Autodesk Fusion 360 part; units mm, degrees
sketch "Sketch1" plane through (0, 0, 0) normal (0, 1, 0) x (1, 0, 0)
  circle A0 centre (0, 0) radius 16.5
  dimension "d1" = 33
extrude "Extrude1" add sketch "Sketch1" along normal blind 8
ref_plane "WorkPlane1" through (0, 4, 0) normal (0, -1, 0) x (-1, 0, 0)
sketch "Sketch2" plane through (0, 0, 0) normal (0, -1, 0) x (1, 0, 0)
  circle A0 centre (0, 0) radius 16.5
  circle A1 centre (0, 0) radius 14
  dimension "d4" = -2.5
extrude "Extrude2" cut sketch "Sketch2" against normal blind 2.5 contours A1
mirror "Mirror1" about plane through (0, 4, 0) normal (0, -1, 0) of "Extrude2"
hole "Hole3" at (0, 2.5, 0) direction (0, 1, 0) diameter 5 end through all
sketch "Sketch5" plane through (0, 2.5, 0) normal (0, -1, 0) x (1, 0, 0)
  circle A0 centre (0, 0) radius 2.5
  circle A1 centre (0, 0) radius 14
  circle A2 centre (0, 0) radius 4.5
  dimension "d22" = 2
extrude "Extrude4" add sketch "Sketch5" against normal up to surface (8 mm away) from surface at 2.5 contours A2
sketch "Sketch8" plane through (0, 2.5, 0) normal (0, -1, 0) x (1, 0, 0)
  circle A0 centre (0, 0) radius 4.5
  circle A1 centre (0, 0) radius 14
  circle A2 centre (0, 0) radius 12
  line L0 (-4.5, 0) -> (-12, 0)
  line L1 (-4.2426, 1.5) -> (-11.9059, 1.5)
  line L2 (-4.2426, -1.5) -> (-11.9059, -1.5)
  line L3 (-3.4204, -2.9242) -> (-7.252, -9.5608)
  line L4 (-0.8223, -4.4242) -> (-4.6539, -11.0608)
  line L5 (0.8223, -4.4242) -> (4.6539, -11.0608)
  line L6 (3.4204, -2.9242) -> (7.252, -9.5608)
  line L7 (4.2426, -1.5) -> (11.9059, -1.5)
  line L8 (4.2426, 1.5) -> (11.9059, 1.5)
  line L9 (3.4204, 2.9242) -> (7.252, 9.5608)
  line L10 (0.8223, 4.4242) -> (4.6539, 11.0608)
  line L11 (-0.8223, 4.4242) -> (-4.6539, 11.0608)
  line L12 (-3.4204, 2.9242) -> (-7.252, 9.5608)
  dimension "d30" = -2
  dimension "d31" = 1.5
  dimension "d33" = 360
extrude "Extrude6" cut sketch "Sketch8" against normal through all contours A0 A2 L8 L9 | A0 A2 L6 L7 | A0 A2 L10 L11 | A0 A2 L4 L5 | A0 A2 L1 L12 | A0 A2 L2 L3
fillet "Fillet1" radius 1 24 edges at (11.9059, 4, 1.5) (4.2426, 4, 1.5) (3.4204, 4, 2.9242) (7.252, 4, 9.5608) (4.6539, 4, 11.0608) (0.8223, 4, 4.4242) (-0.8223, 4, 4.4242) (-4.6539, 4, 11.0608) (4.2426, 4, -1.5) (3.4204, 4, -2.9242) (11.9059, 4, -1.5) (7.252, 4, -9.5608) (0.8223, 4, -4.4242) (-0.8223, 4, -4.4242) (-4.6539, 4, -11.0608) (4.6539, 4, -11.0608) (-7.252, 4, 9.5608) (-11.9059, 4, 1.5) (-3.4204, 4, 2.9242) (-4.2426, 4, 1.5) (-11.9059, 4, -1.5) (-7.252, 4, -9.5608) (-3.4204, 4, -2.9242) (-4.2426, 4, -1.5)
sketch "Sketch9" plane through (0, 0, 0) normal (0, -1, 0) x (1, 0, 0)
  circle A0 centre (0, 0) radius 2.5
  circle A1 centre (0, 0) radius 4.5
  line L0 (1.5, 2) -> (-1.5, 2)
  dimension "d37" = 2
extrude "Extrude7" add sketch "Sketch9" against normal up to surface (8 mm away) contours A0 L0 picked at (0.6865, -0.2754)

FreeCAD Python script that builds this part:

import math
import FreeCAD as App
import Part
import Sketcher

V = App.Vector
Q = App.Units.Quantity


def edges_at(feature, points):
    """Names of the edges that pass closest to the given points."""
    edges = feature.Shape.Edges
    near = lambda p: min(range(len(edges)), key=lambda i: edges[i].distToShape(Part.Vertex(*p))[0])
    return sorted({f"Edge{near(p) + 1}" for p in points})

doc = App.newDocument("Part")
body = doc.addObject("PartDesign::Body", "Body")

# Sketch on XZ plane
sketch1 = doc.addObject("Sketcher::SketchObject", "Sketch")
body.addObject(sketch1)
sketch1.AttachmentSupport = (doc.XZ_Plane, [""])
sketch1.MapMode = "FlatFace"
sketch1.addGeometry(Part.Circle(V(0, 0, 0), V(0, 0, 1), 16.5), False)
sketch1.addConstraint([
    Sketcher.Constraint("Coincident", 0, 3, -1, 1),
    Sketcher.Constraint("Diameter", 0, Q("33 mm")),
])
pad1 = doc.addObject("PartDesign::Pad", "Pad")
body.addObject(pad1)
pad1.Profile = sketch1
pad1.Length = 8
pad1.Reversed = True

# Sketch on XZ plane
sketch2 = doc.addObject("Sketcher::SketchObject", "Sketch001")
body.addObject(sketch2)
sketch2.AttachmentSupport = (doc.XZ_Plane, [""])
sketch2.MapMode = "FlatFace"
sketch2.addGeometry(Part.Circle(V(0, 0, 0), V(0, 0, 1), 14), False)
sketch2.addConstraint([
    Sketcher.Constraint("Coincident", 0, 3, -1, 1),
    Sketcher.Constraint("Diameter", 0, Q("28 mm")),
])
pocket1 = doc.addObject("PartDesign::Pocket", "Pocket")
body.addObject(pocket1)
pocket1.Profile = sketch2
pocket1.Length = 2.5
doc.recompute()

datumplane = doc.addObject("PartDesign::Plane", "DatumPlane")
body.addObject(datumplane)
datumplane.AttachmentSupport = (doc.XZ_Plane, [""])
datumplane.MapMode = "FlatFace"
datumplane.AttachmentOffset = App.Placement(V(0, 0, -4), App.Rotation())
mirrored = doc.addObject("PartDesign::Mirrored", "Mirrored")
body.addObject(mirrored)
mirrored.Originals = [pocket1]
mirrored.MirrorPlane = (datumplane, [""])
body.Tip = mirrored

# Sketch on XZ plane
sketch3 = doc.addObject("Sketcher::SketchObject", "Sketch002")
body.addObject(sketch3)
sketch3.AttachmentSupport = (doc.XZ_Plane, [""])
sketch3.MapMode = "FlatFace"
sketch3.AttachmentOffset = App.Placement(V(0, 0, -2.5), App.Rotation())
sketch3.addGeometry(Part.Circle(V(0, 0, 0), V(0, 0, 1), 2.5), False)
sketch3.addConstraint([
    Sketcher.Constraint("Coincident", 0, 3, -1, 1),
    Sketcher.Constraint("Diameter", 0, Q("5 mm")),
])
doc.recompute()
hole = doc.addObject("PartDesign::Hole", "Hole")
body.addObject(hole)
hole.Profile = sketch3
hole.ThreadType = "None"
hole.Diameter = 5
hole.DepthType = "ThroughAll"

# Sketch on XZ plane
sketch4 = doc.addObject("Sketcher::SketchObject", "Sketch003")
body.addObject(sketch4)
sketch4.AttachmentSupport = (doc.XZ_Plane, [""])
sketch4.MapMode = "FlatFace"
sketch4.addGeometry([
    Part.Circle(V(0, 0, 0), V(0, 0, 1), 4.5),
    Part.Circle(V(0, 0, 0), V(0, 0, 1), 2.5),
], False)
sketch4.addConstraint([
    Sketcher.Constraint("Coincident", 0, 3, -1, 1),
    Sketcher.Constraint("Coincident", 1, 3, -1, 1),
    Sketcher.Constraint("Diameter", 0, Q("9 mm")),
    Sketcher.Constraint("Diameter", 1, Q("5 mm")),
])
pad2 = doc.addObject("PartDesign::Pad", "Pad001")
body.addObject(pad2)
pad2.Profile = sketch4
pad2.Length = 8
pad2.Reversed = True

# Sketch on XZ plane
sketch5 = doc.addObject("Sketcher::SketchObject", "Sketch004")
body.addObject(sketch5)
sketch5.AttachmentSupport = (doc.XZ_Plane, [""])
sketch5.MapMode = "FlatFace"
sketch5.AttachmentOffset = App.Placement(V(0, 0, -2.5), App.Rotation())
sketch5.addGeometry([
    Part.ArcOfCircle(Part.Circle(V(0, 0, 0), V(0, 0, 1), 4.5), math.radians(19.471393), math.radians(40.528101)),  # 0
    Part.LineSegment(V(4.2426, 1.5, 0), V(11.9059, 1.5, 0)),  # 1
    Part.ArcOfCircle(Part.Circle(V(0, 0, 0), V(0, 0, 1), 12), math.radians(7.180744), math.radians(52.819176)),  # 2
    Part.LineSegment(V(7.252, 9.5608, 0), V(3.4204, 2.9242, 0)),  # 3
    Part.LineSegment(V(11.9059, -1.5, 0), V(4.2426, -1.5, 0)),  # 4
    Part.ArcOfCircle(Part.Circle(V(0, 0, 0), V(0, 0, 1), 4.5), math.radians(-40.528101), math.radians(-19.471393)),  # 5
    Part.LineSegment(V(3.4204, -2.9242, 0), V(7.252, -9.5608, 0)),  # 6
    Part.ArcOfCircle(Part.Circle(V(0, 0, 0), V(0, 0, 1), 12), math.radians(-52.819176), math.radians(-7.180744)),  # 7
    Part.ArcOfCircle(Part.Circle(V(0, 0, 0), V(0, 0, 1), 4.5), math.radians(79.470918), math.radians(100.529082)),  # 8
    Part.LineSegment(V(0.8223, 4.4242, 0), V(4.6539, 11.0608, 0)),  # 9
    Part.ArcOfCircle(Part.Circle(V(0, 0, 0), V(0, 0, 1), 12), math.radians(67.180775), math.radians(112.819225)),  # 10
    Part.LineSegment(V(-4.6539, 11.0608, 0), V(-0.8223, 4.4242, 0)),  # 11
    Part.LineSegment(V(4.6539, -11.0608, 0), V(0.8223, -4.4242, 0)),  # 12
    Part.ArcOfCircle(Part.Circle(V(0, 0, 0), V(0, 0, 1), 4.5), math.radians(-100.529082), math.radians(-79.470918)),  # 13
    Part.LineSegment(V(-0.8223, -4.4242, 0), V(-4.6539, -11.0608, 0)),  # 14
    Part.ArcOfCircle(Part.Circle(V(0, 0, 0), V(0, 0, 1), 12), math.radians(-112.819225), math.radians(-67.180775)),  # 15
    Part.ArcOfCircle(Part.Circle(V(0, 0, 0), V(0, 0, 1), 4.5), math.radians(139.471899), math.radians(160.528607)),  # 16
    Part.LineSegment(V(-3.4204, 2.9242, 0), V(-7.252, 9.5608, 0)),  # 17
    Part.ArcOfCircle(Part.Circle(V(0, 0, 0), V(0, 0, 1), 12), math.radians(127.180824), math.radians(172.819256)),  # 18
    Part.LineSegment(V(-11.9059, 1.5, 0), V(-4.2426, 1.5, 0)),  # 19
    Part.LineSegment(V(-7.252, -9.5608, 0), V(-3.4204, -2.9242, 0)),  # 20
    Part.ArcOfCircle(Part.Circle(V(0, 0, 0), V(0, 0, 1), 4.5), math.radians(-160.528607), math.radians(-139.471899)),  # 21
    Part.LineSegment(V(-4.2426, -1.5, 0), V(-11.9059, -1.5, 0)),  # 22
    Part.ArcOfCircle(Part.Circle(V(0, 0, 0), V(0, 0, 1), 12), math.radians(-172.819256), math.radians(-127.180824)),  # 23
], False)
sketch5.addConstraint([
    Sketcher.Constraint("Coincident", 0, 1, 1, 1),
    Sketcher.Constraint("Coincident", 1, 2, 2, 1),
    Sketcher.Constraint("Coincident", 2, 2, 3, 1),
    Sketcher.Constraint("Coincident", 3, 2, 0, 2),
    Sketcher.Constraint("Coincident", 4, 2, 5, 2),
    Sketcher.Constraint("Coincident", 5, 1, 6, 1),
    Sketcher.Constraint("Coincident", 6, 2, 7, 1),
    Sketcher.Constraint("Coincident", 7, 2, 4, 1),
    Sketcher.Constraint("Coincident", 8, 1, 9, 1),
    Sketcher.Constraint("Coincident", 9, 2, 10, 1),
    Sketcher.Constraint("Coincident", 10, 2, 11, 1),
    Sketcher.Constraint("Coincident", 11, 2, 8, 2),
    Sketcher.Constraint("Coincident", 12, 2, 13, 2),
    Sketcher.Constraint("Coincident", 13, 1, 14, 1),
    Sketcher.Constraint("Coincident", 14, 2, 15, 1),
    Sketcher.Constraint("Coincident", 15, 2, 12, 1),
    Sketcher.Constraint("Coincident", 16, 1, 17, 1),
    Sketcher.Constraint("Coincident", 17, 2, 18, 1),
    Sketcher.Constraint("Coincident", 18, 2, 19, 1),
    Sketcher.Constraint("Coincident", 19, 2, 16, 2),
    Sketcher.Constraint("Coincident", 20, 2, 21, 2),
    Sketcher.Constraint("Coincident", 21, 1, 22, 1),
    Sketcher.Constraint("Coincident", 22, 2, 23, 1),
    Sketcher.Constraint("Coincident", 23, 2, 20, 1),
    Sketcher.Constraint("Horizontal", 1),
    Sketcher.Constraint("Horizontal", 4),
    Sketcher.Constraint("Horizontal", 19),
    Sketcher.Constraint("Horizontal", 22),
    Sketcher.Constraint("Coincident", 0, 3, -1, 1),
    Sketcher.Constraint("Coincident", 2, 3, -1, 1),
    Sketcher.Constraint("Coincident", 5, 3, -1, 1),
    Sketcher.Constraint("Coincident", 7, 3, -1, 1),
    Sketcher.Constraint("Coincident", 8, 3, -1, 1),
    Sketcher.Constraint("Coincident", 10, 3, -1, 1),
    Sketcher.Constraint("Coincident", 13, 3, -1, 1),
    Sketcher.Constraint("Coincident", 15, 3, -1, 1),
    Sketcher.Constraint("Coincident", 16, 3, -1, 1),
    Sketcher.Constraint("Coincident", 18, 3, -1, 1),
    Sketcher.Constraint("Coincident", 21, 3, -1, 1),
    Sketcher.Constraint("Coincident", 23, 3, -1, 1),
    Sketcher.Constraint("Equal", 0, 5),
    Sketcher.Constraint("Equal", 2, 7),
    Sketcher.Constraint("Equal", 5, 8),
    Sketcher.Constraint("Equal", 7, 10),
    Sketcher.Constraint("Equal", 8, 13),
    Sketcher.Constraint("Equal", 10, 15),
    Sketcher.Constraint("Equal", 13, 16),
    Sketcher.Constraint("Equal", 15, 18),
    Sketcher.Constraint("Equal", 16, 21),
    Sketcher.Constraint("Equal", 18, 23),
    Sketcher.Constraint("Parallel", 3, 9),
    Sketcher.Constraint("Parallel", 6, 11),
    Sketcher.Constraint("Parallel", 11, 12),
    Sketcher.Constraint("Parallel", 9, 14),
    Sketcher.Constraint("Parallel", 12, 17),
    Sketcher.Constraint("Parallel", 14, 20),
    Sketcher.Constraint("Horizontal", 9, 2, 10, 2),
    Sketcher.Constraint("Horizontal", 8, 1, 11, 2),
    Sketcher.Constraint("Horizontal", 12, 2, 13, 1),
    Sketcher.Constraint("Horizontal", 3, 2, 16, 1),
    Sketcher.Constraint("Horizontal", 1, 2, 18, 2),
    Sketcher.Constraint("Horizontal", 5, 1, 20, 2),
    Sketcher.Constraint("Horizontal", 7, 2, 21, 1),
    Sketcher.Constraint("Vertical", 0, 1, 4, 2),
    Sketcher.Constraint("Vertical", 3, 2, 5, 1),
    Sketcher.Constraint("Vertical", 8, 1, 12, 2),
    Sketcher.Constraint("Equal", 6, 9),
    Sketcher.Constraint("Radius", 2, Q("12 mm")),
    Sketcher.Constraint("DistanceY", -1, 1, 0, 1, Q("1.5 mm")),
    Sketcher.Constraint("Radius", 0, Q("4.5 mm")),
    Sketcher.Constraint("DistanceY", 3, 2, 8, 1, Q("1.5 mm")),
    Sketcher.Constraint("Angle", 3, Q("-119.9997 deg")),
])
pocket2 = doc.addObject("PartDesign::Pocket", "Pocket001")
body.addObject(pocket2)
pocket2.Profile = sketch5
pocket2.Type = "ThroughAll"
doc.recompute()

fillet = doc.addObject("PartDesign::Fillet", "Fillet")
body.addObject(fillet)
fillet.Base = (pocket2, edges_at(pocket2, [
    (11.906, 4, 1.5),
    (4.243, 4, 1.5),
    (3.42, 4, 2.924),
    (7.252, 4, 9.561),
    (4.654, 4, 11.061),
    (0.822, 4, 4.424),
    (-0.822, 4, 4.424),
    (-4.654, 4, 11.061),
    (4.243, 4, -1.5),
    (3.42, 4, -2.924),
    (11.906, 4, -1.5),
    (7.252, 4, -9.561),
    (0.822, 4, -4.424),
    (-0.822, 4, -4.424),
    (-4.654, 4, -11.061),
    (4.654, 4, -11.061),
    (-7.252, 4, 9.561),
    (-11.906, 4, 1.5),
    (-3.42, 4, 2.924),
    (-4.243, 4, 1.5),
    (-11.906, 4, -1.5),
    (-7.252, 4, -9.561),
    (-3.42, 4, -2.924),
    (-4.243, 4, -1.5),
]))
fillet.Radius = 1

# Sketch on XZ plane
sketch6 = doc.addObject("Sketcher::SketchObject", "Sketch005")
body.addObject(sketch6)
sketch6.AttachmentSupport = (doc.XZ_Plane, [""])
sketch6.MapMode = "FlatFace"
sketch6.addGeometry([
    Part.ArcOfCircle(Part.Circle(V(0, 0, 0), V(0, 0, 1), 2.5), math.radians(126.869898), math.radians(413.130102)),
    Part.LineSegment(V(1.5, 2, 0), V(-1.5, 2, 0)),
], False)
sketch6.addConstraint([
    Sketcher.Constraint("Coincident", 0, 1, 1, 2),
    Sketcher.Constraint("Coincident", 1, 1, 0, 2),
    Sketcher.Constraint("Horizontal", 1),
    Sketcher.Constraint("Coincident", 0, 3, -1, 1),
    Sketcher.Constraint("DistanceY", -1, 1, 0, 1, Q("2 mm")),
    Sketcher.Constraint("Radius", 0, Q("2.5 mm")),
])
pad3 = doc.addObject("PartDesign::Pad", "Pad002")
body.addObject(pad3)
pad3.Profile = sketch6
pad3.Length = 8
pad3.Reversed = True

doc.recompute()
